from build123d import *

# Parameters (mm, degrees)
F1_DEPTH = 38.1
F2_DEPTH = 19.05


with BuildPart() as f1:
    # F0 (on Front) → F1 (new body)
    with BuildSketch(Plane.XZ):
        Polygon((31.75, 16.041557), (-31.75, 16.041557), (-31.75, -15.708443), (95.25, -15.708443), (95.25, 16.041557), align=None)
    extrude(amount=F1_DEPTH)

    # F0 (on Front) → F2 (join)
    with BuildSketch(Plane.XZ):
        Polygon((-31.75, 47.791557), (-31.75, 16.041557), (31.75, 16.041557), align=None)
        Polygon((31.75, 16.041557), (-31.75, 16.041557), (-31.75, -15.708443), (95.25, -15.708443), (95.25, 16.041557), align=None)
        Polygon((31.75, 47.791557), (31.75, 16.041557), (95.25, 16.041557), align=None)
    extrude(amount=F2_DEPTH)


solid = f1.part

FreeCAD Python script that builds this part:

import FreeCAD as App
import Part
import Sketcher
Q = App.Units.Quantity

doc = App.newDocument("Part")
body = doc.addObject("PartDesign::Body", "Body")

sketch1 = doc.addObject("Sketcher::SketchObject", "Sketch")
body.addObject(sketch1)
sketch1.AttachmentSupport = (doc.XZ_Plane, [""])
sketch1.MapMode = "FlatFace"
sketch1.addGeometry(Part.LineSegment(App.Vector(-32, 16, 0), App.Vector(-32, -16, 0)), False)
sketch1.addGeometry(Part.LineSegment(App.Vector(-32, -16, 0), App.Vector(95, -16, 0)), False)
sketch1.addGeometry(Part.LineSegment(App.Vector(95, -16, 0), App.Vector(95, 16, 0)), False)
sketch1.addGeometry(Part.LineSegment(App.Vector(95, 16, 0), App.Vector(-32, 16, 0)), False)
sketch1.addConstraint(Sketcher.Constraint("Coincident", 0, 2, 1, 1))
sketch1.addConstraint(Sketcher.Constraint("Coincident", 1, 2, 2, 1))
sketch1.addConstraint(Sketcher.Constraint("Coincident", 2, 2, 3, 1))
sketch1.addConstraint(Sketcher.Constraint("Coincident", 3, 2, 0, 1))
sketch1.addConstraint(Sketcher.Constraint("Vertical", 0))
sketch1.addConstraint(Sketcher.Constraint("Horizontal", 1))
sketch1.addConstraint(Sketcher.Constraint("Vertical", 2))
sketch1.addConstraint(Sketcher.Constraint("Horizontal", 3))
sketch1.addConstraint(Sketcher.Constraint("DistanceX", 1, 1, 1, 2, Q("5 in")))
sketch1.addConstraint(Sketcher.Constraint("DistanceY", 0, 2, 0, 1, Q("1.25 in")))
sketch1.addConstraint(Sketcher.Constraint("DistanceX", 0, 2, -1, 1, Q("1.25 in")))
sketch1.addConstraint(Sketcher.Constraint("DistanceY", 0, 2, -1, 1, 15.708443))
pad1 = doc.addObject("PartDesign::Pad", "Pad")
body.addObject(pad1)
pad1.Profile = sketch1
pad1.Length = Q("1.5 in")

sketch2 = doc.addObject("Sketcher::SketchObject", "Sketch001")
body.addObject(sketch2)
sketch2.AttachmentSupport = (doc.XZ_Plane, [""])
sketch2.MapMode = "FlatFace"
sketch2.addGeometry(Part.LineSegment(App.Vector(-32, 48, 0), App.Vector(-32, -16, 0)), False)
sketch2.addGeometry(Part.LineSegment(App.Vector(-32, -16, 0), App.Vector(95, -16, 0)), False)
sketch2.addGeometry(Part.LineSegment(App.Vector(95, -16, 0), App.Vector(95, 16, 0)), False)
sketch2.addGeometry(Part.LineSegment(App.Vector(95, 16, 0), App.Vector(32, 48, 0)), False)
sketch2.addGeometry(Part.LineSegment(App.Vector(32, 48, 0), App.Vector(32, 16, 0)), False)
sketch2.addGeometry(Part.LineSegment(App.Vector(32, 16, 0), App.Vector(-32, 48, 0)), False)
sketch2.addConstraint(Sketcher.Constraint("Coincident", 0, 2, 1, 1))
sketch2.addConstraint(Sketcher.Constraint("Coincident", 1, 2, 2, 1))
sketch2.addConstraint(Sketcher.Constraint("Coincident", 2, 2, 3, 1))
sketch2.addConstraint(Sketcher.Constraint("Coincident", 3, 2, 4, 1))
sketch2.addConstraint(Sketcher.Constraint("Coincident", 4, 2, 5, 1))
sketch2.addConstraint(Sketcher.Constraint("Coincident", 5, 2, 0, 1))
sketch2.addConstraint(Sketcher.Constraint("Vertical", 0))
sketch2.addConstraint(Sketcher.Constraint("Horizontal", 1))
sketch2.addConstraint(Sketcher.Constraint("Vertical", 2))
sketch2.addConstraint(Sketcher.Constraint("Vertical", 4))
sketch2.addConstraint(Sketcher.Constraint("Symmetric", 3, 2, 5, 2, -2))
sketch2.addConstraint(Sketcher.Constraint("Parallel", 3, 5))
sketch2.addConstraint(Sketcher.Constraint("Horizontal", 2, 2, 4, 2))
sketch2.addConstraint(Sketcher.Constraint("Equal", 2, 4))
sketch2.addConstraint(Sketcher.Constraint("DistanceX", 1, 1, 1, 2, Q("5 in")))
sketch2.addConstraint(Sketcher.Constraint("DistanceY", 0, 2, 0, 1, Q("2.5 in")))
sketch2.addConstraint(Sketcher.Constraint("DistanceY", 0, 2, -1, 1, 15.708443))
pad2 = doc.addObject("PartDesign::Pad", "Pad001")
body.addObject(pad2)
pad2.Profile = sketch2
pad2.Length = Q("0.75 in")

doc.recompute()
